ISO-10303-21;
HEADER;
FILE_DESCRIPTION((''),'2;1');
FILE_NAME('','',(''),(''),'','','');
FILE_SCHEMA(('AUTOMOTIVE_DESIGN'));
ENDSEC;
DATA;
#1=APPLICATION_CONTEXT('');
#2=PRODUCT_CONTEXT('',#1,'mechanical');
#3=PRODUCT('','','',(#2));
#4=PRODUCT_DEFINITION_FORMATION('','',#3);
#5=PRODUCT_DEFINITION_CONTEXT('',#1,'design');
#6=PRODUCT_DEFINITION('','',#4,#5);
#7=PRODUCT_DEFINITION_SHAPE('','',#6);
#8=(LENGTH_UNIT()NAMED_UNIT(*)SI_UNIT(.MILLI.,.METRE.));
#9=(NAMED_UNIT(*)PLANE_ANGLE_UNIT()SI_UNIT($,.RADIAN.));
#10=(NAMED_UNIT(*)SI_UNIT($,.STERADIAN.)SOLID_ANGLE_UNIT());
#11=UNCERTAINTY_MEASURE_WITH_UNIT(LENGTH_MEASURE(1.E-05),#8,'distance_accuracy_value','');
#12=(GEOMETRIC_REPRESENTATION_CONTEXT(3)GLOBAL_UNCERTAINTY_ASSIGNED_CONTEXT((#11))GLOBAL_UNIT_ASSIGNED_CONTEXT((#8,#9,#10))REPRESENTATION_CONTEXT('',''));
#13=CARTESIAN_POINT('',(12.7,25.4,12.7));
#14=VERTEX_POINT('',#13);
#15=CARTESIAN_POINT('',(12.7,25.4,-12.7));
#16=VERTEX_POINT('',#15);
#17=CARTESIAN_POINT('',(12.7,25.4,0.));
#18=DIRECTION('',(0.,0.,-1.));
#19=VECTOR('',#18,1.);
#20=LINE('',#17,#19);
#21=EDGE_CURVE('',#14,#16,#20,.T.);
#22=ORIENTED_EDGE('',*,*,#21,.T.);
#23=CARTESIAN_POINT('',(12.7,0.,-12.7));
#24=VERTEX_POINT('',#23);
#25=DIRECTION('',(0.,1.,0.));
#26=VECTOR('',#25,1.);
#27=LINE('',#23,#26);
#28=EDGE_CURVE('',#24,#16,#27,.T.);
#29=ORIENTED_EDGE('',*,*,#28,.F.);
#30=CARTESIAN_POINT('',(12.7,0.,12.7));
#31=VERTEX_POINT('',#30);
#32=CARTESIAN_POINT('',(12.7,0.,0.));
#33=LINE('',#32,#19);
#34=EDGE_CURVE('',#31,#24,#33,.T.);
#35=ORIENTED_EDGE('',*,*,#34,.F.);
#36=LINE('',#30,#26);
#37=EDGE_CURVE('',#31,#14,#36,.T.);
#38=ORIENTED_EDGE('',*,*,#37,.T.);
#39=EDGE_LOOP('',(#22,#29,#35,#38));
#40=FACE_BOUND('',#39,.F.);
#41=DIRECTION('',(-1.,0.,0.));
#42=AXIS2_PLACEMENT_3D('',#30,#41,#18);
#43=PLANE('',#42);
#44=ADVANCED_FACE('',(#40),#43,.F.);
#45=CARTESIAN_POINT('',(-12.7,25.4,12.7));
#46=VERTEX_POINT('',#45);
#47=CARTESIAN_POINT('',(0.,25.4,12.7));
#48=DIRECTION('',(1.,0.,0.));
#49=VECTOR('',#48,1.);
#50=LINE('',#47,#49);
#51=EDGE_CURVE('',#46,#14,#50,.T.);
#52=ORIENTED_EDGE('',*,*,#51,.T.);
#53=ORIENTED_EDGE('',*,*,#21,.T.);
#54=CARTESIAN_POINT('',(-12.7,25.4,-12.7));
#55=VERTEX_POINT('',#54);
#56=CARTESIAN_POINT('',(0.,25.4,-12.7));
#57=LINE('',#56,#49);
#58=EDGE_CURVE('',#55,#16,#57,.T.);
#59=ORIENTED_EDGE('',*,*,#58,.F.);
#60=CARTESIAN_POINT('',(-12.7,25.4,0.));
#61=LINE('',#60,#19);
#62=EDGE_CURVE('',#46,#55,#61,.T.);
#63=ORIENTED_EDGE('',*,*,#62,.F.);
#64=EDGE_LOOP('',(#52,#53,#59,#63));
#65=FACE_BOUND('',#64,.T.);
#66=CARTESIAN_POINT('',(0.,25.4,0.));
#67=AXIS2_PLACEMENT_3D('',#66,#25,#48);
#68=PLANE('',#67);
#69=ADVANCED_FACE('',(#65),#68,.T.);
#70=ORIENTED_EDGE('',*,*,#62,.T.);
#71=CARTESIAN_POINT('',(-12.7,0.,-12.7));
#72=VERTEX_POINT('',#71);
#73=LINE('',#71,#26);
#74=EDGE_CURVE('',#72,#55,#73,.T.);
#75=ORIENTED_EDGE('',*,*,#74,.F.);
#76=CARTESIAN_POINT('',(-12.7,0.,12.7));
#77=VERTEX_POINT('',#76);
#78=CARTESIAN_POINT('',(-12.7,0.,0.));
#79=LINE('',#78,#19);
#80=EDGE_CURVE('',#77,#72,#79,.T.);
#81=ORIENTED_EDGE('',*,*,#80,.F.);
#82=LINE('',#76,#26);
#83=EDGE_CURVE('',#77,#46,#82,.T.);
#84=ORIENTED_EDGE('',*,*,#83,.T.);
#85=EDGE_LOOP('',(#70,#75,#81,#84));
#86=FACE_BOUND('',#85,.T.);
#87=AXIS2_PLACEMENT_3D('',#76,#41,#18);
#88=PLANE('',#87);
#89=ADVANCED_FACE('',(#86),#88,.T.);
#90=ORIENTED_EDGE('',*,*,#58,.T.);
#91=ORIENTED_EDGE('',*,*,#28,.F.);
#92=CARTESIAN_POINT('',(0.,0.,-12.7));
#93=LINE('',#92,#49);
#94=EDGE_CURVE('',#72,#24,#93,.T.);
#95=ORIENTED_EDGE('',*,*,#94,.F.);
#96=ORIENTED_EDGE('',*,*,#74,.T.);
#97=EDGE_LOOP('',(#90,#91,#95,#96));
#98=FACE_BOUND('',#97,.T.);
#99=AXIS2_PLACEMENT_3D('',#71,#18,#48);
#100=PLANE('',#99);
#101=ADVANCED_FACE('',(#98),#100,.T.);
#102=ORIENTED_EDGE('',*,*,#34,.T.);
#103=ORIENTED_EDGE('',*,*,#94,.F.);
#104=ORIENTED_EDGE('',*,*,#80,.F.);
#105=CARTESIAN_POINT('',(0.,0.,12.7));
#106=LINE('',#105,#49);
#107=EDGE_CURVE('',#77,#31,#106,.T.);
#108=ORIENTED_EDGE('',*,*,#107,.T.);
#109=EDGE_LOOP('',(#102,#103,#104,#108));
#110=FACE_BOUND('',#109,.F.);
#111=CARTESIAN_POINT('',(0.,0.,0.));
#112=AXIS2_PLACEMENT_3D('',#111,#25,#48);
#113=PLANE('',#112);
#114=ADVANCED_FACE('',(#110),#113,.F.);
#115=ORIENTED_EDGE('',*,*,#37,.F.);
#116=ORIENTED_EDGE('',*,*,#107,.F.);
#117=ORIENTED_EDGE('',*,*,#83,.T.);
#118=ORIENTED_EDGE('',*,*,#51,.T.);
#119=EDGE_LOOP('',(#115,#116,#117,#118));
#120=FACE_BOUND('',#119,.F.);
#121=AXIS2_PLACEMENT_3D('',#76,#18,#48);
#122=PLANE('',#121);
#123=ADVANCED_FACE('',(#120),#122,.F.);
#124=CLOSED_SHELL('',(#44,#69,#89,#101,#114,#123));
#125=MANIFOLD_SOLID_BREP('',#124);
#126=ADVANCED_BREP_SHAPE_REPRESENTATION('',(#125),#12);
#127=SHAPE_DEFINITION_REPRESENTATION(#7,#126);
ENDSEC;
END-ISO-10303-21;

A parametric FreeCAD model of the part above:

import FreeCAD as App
import Part
import Sketcher
from FreeCAD import Vector
Q = App.Units.Quantity

doc = App.newDocument("Part")
body = doc.addObject("PartDesign::Body", "Body")

# Sketch on XZ plane
sketch1 = body.newObject("Sketcher::SketchObject", "Sketch")
sketch1.AttachmentSupport = (doc.getObject("XZ_Plane"), [""])
sketch1.MapMode = "FlatFace"
sketch1.addGeometry([
    Part.LineSegment(Vector(-13, -13, 0), Vector(-13, 13, 0)),
    Part.LineSegment(Vector(-13, 13, 0), Vector(13, 13, 0)),
    Part.LineSegment(Vector(13, 13, 0), Vector(13, -13, 0)),
    Part.LineSegment(Vector(13, -13, 0), Vector(-13, -13, 0)),
], False)
sketch1.addConstraint([
    Sketcher.Constraint("Coincident", 0, 2, 1, 1),
    Sketcher.Constraint("Coincident", 1, 2, 2, 1),
    Sketcher.Constraint("Coincident", 2, 2, 3, 1),
    Sketcher.Constraint("Coincident", 3, 2, 0, 1),
    Sketcher.Constraint("Vertical", 0),
    Sketcher.Constraint("Horizontal", 1),
    Sketcher.Constraint("Vertical", 2),
    Sketcher.Constraint("Horizontal", 3),
    Sketcher.Constraint("Symmetric", 0, 2, 2, 2, -1, 1),
    Sketcher.Constraint("Equal", 3, 0),
    Sketcher.Constraint("DistanceX", 1, 1, 1, 2, Q("1 in")),
])
pad1 = body.newObject("PartDesign::Pad", "Pad")
pad1.Profile = sketch1
pad1.Length = Q("1 in")
pad1.Reversed = True

doc.recompute()
